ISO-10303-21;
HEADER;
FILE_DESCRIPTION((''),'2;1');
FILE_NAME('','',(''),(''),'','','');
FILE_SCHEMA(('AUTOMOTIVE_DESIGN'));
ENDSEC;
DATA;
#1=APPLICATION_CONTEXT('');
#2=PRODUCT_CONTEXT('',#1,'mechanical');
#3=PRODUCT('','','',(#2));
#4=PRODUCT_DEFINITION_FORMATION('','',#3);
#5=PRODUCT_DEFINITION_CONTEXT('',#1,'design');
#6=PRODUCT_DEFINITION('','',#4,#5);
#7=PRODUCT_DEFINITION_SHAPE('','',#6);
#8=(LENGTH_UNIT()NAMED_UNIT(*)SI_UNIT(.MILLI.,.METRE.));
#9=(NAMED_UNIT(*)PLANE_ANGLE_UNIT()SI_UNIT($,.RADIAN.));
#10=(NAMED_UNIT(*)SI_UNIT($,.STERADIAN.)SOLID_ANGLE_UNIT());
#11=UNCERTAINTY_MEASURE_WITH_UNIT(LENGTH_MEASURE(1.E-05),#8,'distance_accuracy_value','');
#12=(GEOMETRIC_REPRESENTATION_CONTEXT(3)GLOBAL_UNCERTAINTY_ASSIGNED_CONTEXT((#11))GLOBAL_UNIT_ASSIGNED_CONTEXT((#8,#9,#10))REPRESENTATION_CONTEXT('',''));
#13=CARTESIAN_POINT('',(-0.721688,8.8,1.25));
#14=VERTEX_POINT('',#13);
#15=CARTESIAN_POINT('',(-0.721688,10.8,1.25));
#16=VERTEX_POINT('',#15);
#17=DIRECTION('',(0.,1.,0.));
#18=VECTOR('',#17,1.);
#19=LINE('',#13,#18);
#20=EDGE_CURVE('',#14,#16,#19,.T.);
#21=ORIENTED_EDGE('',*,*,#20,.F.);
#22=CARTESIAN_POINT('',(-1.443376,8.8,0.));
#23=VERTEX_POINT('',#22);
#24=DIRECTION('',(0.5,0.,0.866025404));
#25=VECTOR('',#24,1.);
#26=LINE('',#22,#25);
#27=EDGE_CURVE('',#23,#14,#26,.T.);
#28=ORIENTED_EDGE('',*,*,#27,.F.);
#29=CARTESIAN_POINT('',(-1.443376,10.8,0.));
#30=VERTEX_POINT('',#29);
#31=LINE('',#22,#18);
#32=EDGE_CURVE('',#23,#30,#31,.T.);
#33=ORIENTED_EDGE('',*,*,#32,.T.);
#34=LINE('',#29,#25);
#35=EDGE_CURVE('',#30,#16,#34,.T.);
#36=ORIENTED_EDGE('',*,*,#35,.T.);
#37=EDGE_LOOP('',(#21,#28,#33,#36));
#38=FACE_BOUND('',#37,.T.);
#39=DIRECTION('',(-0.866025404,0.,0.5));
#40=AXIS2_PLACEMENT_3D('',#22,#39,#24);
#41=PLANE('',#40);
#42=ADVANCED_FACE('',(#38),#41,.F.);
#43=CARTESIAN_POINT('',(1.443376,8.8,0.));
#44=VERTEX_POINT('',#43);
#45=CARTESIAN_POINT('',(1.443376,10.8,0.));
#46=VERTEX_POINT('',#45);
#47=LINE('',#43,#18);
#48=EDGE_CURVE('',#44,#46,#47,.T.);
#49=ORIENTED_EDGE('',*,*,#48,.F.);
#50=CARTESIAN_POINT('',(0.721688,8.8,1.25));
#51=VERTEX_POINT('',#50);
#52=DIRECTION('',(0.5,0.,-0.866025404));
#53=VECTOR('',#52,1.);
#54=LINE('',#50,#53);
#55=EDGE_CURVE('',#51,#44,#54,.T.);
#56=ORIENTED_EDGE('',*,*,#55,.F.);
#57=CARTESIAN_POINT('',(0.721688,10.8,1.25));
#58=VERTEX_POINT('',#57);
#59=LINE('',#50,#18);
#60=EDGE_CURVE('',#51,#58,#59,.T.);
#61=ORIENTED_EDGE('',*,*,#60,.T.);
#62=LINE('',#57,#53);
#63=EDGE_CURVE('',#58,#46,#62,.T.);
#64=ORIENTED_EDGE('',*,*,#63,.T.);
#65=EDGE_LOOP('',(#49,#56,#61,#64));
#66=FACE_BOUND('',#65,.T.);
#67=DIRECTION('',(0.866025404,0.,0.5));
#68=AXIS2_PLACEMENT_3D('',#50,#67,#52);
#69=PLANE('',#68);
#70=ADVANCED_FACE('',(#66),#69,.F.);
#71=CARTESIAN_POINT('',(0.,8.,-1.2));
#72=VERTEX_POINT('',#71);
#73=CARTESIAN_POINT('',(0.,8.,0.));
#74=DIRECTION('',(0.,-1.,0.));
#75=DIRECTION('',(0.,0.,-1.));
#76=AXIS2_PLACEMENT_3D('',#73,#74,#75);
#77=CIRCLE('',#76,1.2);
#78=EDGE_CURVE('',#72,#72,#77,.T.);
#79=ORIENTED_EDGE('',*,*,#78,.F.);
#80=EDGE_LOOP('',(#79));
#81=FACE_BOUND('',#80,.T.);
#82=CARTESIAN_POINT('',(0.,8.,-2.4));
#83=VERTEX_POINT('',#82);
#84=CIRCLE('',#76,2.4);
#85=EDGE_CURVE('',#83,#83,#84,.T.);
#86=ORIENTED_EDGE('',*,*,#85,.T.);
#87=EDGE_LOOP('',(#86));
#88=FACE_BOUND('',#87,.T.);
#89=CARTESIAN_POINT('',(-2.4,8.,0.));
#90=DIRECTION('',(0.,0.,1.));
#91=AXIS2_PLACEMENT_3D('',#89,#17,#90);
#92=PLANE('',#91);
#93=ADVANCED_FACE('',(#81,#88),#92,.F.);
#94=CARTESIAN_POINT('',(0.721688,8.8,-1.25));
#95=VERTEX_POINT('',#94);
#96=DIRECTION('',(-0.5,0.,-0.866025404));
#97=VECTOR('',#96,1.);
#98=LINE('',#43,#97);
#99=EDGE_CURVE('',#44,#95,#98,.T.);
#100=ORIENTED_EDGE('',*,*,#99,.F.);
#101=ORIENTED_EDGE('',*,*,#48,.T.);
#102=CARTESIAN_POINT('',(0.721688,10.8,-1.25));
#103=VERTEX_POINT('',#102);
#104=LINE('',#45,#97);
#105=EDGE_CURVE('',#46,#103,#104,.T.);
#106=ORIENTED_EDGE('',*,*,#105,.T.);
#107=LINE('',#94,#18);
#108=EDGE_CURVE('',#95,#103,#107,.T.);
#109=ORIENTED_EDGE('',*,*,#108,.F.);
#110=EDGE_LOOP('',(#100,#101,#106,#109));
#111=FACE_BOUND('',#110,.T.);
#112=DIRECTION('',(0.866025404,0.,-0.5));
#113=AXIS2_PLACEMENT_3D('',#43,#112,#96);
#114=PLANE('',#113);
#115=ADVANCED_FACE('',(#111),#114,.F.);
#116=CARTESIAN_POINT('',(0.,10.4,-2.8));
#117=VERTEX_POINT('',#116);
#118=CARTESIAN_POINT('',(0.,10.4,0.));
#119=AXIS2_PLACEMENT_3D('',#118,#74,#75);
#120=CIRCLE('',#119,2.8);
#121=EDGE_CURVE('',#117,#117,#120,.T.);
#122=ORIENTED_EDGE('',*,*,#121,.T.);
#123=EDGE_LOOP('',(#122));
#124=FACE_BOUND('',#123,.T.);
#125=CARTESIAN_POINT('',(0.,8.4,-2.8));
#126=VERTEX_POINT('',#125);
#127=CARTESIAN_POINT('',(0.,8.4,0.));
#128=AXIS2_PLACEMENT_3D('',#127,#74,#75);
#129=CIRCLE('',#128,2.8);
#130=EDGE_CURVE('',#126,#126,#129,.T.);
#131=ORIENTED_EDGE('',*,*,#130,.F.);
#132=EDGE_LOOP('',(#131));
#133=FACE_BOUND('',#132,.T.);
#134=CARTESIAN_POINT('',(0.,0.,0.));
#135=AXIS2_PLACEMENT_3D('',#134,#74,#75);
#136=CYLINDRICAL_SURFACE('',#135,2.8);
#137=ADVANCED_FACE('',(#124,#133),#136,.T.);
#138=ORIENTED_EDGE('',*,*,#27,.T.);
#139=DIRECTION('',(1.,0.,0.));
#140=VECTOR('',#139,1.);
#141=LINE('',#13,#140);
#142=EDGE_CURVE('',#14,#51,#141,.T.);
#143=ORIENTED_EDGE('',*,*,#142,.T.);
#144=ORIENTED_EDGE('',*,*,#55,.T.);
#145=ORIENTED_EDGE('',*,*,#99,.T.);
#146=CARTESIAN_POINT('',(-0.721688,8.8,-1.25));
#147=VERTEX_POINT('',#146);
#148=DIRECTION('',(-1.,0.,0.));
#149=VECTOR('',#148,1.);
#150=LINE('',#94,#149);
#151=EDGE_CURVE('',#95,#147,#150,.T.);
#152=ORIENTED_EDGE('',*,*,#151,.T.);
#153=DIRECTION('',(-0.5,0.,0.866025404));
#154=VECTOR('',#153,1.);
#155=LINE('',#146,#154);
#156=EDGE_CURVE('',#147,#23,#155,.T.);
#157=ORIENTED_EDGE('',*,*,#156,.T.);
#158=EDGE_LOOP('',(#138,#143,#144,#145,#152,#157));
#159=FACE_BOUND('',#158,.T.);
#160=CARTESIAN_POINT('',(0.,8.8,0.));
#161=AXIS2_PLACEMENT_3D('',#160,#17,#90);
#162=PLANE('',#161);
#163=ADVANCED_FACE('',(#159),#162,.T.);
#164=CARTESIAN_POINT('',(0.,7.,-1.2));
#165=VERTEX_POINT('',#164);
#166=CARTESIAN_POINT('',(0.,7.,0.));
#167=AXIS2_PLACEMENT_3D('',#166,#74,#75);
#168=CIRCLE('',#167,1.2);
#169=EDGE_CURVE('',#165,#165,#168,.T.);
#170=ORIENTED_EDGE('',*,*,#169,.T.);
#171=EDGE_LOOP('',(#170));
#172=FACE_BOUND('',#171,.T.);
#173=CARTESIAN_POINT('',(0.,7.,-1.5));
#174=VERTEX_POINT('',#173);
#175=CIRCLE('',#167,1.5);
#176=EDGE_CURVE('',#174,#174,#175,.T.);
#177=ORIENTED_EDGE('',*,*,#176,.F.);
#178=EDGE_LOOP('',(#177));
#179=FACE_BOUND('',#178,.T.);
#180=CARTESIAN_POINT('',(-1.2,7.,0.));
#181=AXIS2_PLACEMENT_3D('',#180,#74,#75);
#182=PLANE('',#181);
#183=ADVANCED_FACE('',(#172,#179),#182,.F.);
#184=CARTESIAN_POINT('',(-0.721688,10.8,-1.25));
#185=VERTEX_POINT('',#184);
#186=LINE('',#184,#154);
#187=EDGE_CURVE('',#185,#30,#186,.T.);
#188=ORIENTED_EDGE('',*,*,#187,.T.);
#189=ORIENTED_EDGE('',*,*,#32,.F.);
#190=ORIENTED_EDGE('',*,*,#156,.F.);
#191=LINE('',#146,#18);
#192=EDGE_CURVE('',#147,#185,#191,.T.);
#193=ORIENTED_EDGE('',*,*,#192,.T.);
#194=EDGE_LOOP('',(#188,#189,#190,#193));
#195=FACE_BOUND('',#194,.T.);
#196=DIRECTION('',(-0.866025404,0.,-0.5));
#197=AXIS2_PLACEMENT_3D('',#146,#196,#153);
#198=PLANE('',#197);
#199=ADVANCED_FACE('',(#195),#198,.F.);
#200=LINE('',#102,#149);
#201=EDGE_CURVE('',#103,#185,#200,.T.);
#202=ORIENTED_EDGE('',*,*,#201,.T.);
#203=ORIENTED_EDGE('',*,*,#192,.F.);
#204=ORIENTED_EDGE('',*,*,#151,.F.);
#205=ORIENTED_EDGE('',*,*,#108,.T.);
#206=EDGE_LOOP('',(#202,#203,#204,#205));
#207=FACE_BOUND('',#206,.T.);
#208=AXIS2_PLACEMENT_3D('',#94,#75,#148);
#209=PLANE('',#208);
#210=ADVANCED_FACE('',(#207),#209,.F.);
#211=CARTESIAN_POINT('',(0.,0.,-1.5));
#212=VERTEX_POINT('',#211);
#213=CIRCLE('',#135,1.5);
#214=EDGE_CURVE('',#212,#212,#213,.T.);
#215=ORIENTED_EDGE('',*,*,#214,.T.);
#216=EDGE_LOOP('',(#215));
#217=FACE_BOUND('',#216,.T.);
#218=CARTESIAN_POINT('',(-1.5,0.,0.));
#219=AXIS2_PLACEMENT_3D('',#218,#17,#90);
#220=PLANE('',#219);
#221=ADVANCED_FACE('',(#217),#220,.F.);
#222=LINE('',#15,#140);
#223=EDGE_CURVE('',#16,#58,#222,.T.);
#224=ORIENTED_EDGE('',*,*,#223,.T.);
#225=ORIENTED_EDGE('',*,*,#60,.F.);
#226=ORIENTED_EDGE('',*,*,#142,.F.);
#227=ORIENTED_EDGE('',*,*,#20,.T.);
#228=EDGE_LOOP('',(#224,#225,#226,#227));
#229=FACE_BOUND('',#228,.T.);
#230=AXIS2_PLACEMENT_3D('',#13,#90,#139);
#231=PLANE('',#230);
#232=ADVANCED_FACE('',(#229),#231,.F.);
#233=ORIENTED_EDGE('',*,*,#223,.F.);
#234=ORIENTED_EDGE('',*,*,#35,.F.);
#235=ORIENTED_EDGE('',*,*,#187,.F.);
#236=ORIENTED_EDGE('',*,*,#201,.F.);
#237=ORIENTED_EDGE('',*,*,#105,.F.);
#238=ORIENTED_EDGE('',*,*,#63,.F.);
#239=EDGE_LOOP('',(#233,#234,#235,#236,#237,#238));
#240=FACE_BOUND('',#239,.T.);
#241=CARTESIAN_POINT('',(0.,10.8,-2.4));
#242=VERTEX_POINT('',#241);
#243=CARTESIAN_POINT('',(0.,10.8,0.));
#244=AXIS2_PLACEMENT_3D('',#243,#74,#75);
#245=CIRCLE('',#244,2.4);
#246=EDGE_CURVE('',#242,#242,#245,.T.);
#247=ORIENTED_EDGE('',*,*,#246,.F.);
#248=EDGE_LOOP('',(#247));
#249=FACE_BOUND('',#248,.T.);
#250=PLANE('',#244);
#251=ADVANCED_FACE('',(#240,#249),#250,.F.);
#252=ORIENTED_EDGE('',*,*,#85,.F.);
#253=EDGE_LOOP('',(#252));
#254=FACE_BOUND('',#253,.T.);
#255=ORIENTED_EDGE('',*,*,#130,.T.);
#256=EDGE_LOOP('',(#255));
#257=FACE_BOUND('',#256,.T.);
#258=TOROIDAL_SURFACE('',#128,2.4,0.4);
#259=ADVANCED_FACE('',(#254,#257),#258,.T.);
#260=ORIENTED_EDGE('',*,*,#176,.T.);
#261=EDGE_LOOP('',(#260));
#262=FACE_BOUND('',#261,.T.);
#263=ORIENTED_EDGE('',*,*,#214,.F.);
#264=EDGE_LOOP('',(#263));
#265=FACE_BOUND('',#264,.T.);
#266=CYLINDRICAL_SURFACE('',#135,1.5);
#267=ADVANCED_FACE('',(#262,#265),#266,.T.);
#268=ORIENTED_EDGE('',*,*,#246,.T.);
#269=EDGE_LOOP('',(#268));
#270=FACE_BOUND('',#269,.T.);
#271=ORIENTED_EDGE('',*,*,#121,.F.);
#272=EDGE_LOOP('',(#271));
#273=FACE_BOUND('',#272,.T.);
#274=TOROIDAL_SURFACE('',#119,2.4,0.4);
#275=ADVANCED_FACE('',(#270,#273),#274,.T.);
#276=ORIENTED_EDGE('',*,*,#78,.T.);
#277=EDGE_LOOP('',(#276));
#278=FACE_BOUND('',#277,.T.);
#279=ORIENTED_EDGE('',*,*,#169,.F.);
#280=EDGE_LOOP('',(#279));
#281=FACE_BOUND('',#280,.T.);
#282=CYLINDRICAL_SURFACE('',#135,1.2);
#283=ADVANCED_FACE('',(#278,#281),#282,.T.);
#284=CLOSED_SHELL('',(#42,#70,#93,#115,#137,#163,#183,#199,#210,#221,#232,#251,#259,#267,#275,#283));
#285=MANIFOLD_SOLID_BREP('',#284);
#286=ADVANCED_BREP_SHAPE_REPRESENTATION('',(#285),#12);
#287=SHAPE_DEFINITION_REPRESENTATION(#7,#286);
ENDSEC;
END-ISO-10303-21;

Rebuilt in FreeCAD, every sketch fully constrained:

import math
import FreeCAD as App
import Part
import Sketcher

V = App.Vector
Q = App.Units.Quantity

doc = App.newDocument("Part")
body = doc.addObject("PartDesign::Body", "Body")

# Sketch on XY plane
sketch1 = doc.addObject("Sketcher::SketchObject", "Sketch")
body.addObject(sketch1)
sketch1.AttachmentSupport = (doc.XY_Plane, [""])
sketch1.MapMode = "FlatFace"
sketch1.addGeometry(Part.LineSegment(V(0, 10.8, 0), V(-2.4, 10.8, 0)), False)
sketch1.addGeometry(Part.ArcOfCircle(Part.Circle(V(-2.4, 10.4, 0), V(0, 0, 1), 0.4), math.radians(90), math.radians(180)), False)
sketch1.addGeometry(Part.LineSegment(V(-2.8, 10.4, 0), V(-2.8, 8.4, 0)), False)
sketch1.addGeometry(Part.ArcOfCircle(Part.Circle(V(-2.4, 8.4, 0), V(0, 0, 1), 0.4), math.radians(-180), math.radians(-90)), False)
sketch1.addGeometry(Part.LineSegment(V(-2.4, 8, 0), V(-1.2, 8, 0)), False)
sketch1.addGeometry(Part.LineSegment(V(-1.2, 8, 0), V(-1.2, 7, 0)), False)
sketch1.addGeometry(Part.LineSegment(V(-1.2, 7, 0), V(-1.5, 7, 0)), False)
sketch1.addGeometry(Part.LineSegment(V(-1.5, 7, 0), V(-1.5, 0, 0)), False)
sketch1.addGeometry(Part.LineSegment(V(-1.5, 0, 0), V(0, 0, 0)), False)
sketch1.addGeometry(Part.LineSegment(V(0, 0, 0), V(0, 10.8, 0)), False)
sketch1.addConstraint(Sketcher.Constraint("Tangent", 0, 2, 1, 1))
sketch1.addConstraint(Sketcher.Constraint("Tangent", 1, 2, 2, 1))
sketch1.addConstraint(Sketcher.Constraint("Tangent", 2, 2, 3, 1))
sketch1.addConstraint(Sketcher.Constraint("Tangent", 3, 2, 4, 1))
sketch1.addConstraint(Sketcher.Constraint("Coincident", 4, 2, 5, 1))
sketch1.addConstraint(Sketcher.Constraint("Coincident", 5, 2, 6, 1))
sketch1.addConstraint(Sketcher.Constraint("Coincident", 6, 2, 7, 1))
sketch1.addConstraint(Sketcher.Constraint("Coincident", 7, 2, 8, 1))
sketch1.addConstraint(Sketcher.Constraint("Coincident", 8, 2, 9, 1))
sketch1.addConstraint(Sketcher.Constraint("Coincident", 9, 2, 0, 1))
sketch1.addConstraint(Sketcher.Constraint("Horizontal", 0))
sketch1.addConstraint(Sketcher.Constraint("Vertical", 2))
sketch1.addConstraint(Sketcher.Constraint("Horizontal", 4))
sketch1.addConstraint(Sketcher.Constraint("Vertical", 5))
sketch1.addConstraint(Sketcher.Constraint("Horizontal", 6))
sketch1.addConstraint(Sketcher.Constraint("Vertical", 7))
sketch1.addConstraint(Sketcher.Constraint("Horizontal", 8))
sketch1.addConstraint(Sketcher.Constraint("Vertical", 9))
sketch1.addConstraint(Sketcher.Constraint("Coincident", 8, 2, -1, 1))
sketch1.addConstraint(Sketcher.Constraint("Equal", 1, 3))
sketch1.addConstraint(Sketcher.Constraint("Radius", 1, Q("0.4 mm")))
sketch1.addConstraint(Sketcher.Constraint("DistanceY", 2, 2, 2, 1, Q("2 mm")))
sketch1.addConstraint(Sketcher.Constraint("DistanceY", 5, 2, 5, 1, Q("1 mm")))
sketch1.addConstraint(Sketcher.Constraint("DistanceY", 7, 2, 7, 1, Q("7 mm")))
sketch1.addConstraint(Sketcher.Constraint("DistanceX", 0, 2, 0, 1, Q("2.4 mm")))
sketch1.addConstraint(Sketcher.Constraint("DistanceX", 4, 1, 4, 2, Q("1.2 mm")))
sketch1.addConstraint(Sketcher.Constraint("DistanceX", 6, 2, 6, 1, Q("0.3 mm")))
revolution = doc.addObject("PartDesign::Revolution", "Revolution")
body.addObject(revolution)
revolution.Profile = sketch1
revolution.ReferenceAxis = (sketch1, ["V_Axis"])
revolution.Angle = 360

# Sketch on XZ plane
sketch2 = doc.addObject("Sketcher::SketchObject", "Sketch001")
body.addObject(sketch2)
sketch2.AttachmentSupport = (doc.XZ_Plane, [""])
sketch2.MapMode = "FlatFace"
sketch2.AttachmentOffset = App.Placement(V(0, 0, -10.8), App.Rotation())
sketch2.addGeometry(Part.LineSegment(V(-0.7, -1.2, 0), V(-1.4, 0, 0)), False)
sketch2.addGeometry(Part.LineSegment(V(-1.4, 0, 0), V(-0.7, 1.2, 0)), False)
sketch2.addGeometry(Part.LineSegment(V(-0.7, 1.2, 0), V(0.7, 1.2, 0)), False)
sketch2.addGeometry(Part.LineSegment(V(0.7, 1.2, 0), V(1.4, 0, 0)), False)
sketch2.addGeometry(Part.LineSegment(V(1.4, 0, 0), V(0.7, -1.2, 0)), False)
sketch2.addGeometry(Part.LineSegment(V(0.7, -1.2, 0), V(-0.7, -1.2, 0)), False)
sketch2.addConstraint(Sketcher.Constraint("Coincident", 0, 2, 1, 1))
sketch2.addConstraint(Sketcher.Constraint("Coincident", 1, 2, 2, 1))
sketch2.addConstraint(Sketcher.Constraint("Coincident", 2, 2, 3, 1))
sketch2.addConstraint(Sketcher.Constraint("Coincident", 3, 2, 4, 1))
sketch2.addConstraint(Sketcher.Constraint("Coincident", 4, 2, 5, 1))
sketch2.addConstraint(Sketcher.Constraint("Coincident", 5, 2, 0, 1))
sketch2.addConstraint(Sketcher.Constraint("Horizontal", 2))
sketch2.addConstraint(Sketcher.Constraint("Horizontal", 5))
sketch2.addConstraint(Sketcher.Constraint("Symmetric", 0, 2, 3, 2, -1, 1))
sketch2.addConstraint(Sketcher.Constraint("Symmetric", 1, 2, 4, 2, -1, 1))
sketch2.addConstraint(Sketcher.Constraint("PointOnObject", 0, 2, -1))
sketch2.addConstraint(Sketcher.Constraint("Parallel", 0, 3))
sketch2.addConstraint(Sketcher.Constraint("Vertical", 2, 2, 4, 2))
sketch2.addConstraint(Sketcher.Constraint("Angle", 0, Q("120 deg")))
sketch2.addConstraint(Sketcher.Constraint("DistanceY", 4, 2, 2, 2, Q("2.5 mm")))
sketch2.addConstraint(Sketcher.Constraint("DistanceX", 2, 1, 2, 2, Q("1.443376 mm")))
pocket1 = doc.addObject("PartDesign::Pocket", "Pocket")
body.addObject(pocket1)
pocket1.Profile = sketch2
pocket1.Length = 2
pocket1.Reversed = True

doc.recompute()
